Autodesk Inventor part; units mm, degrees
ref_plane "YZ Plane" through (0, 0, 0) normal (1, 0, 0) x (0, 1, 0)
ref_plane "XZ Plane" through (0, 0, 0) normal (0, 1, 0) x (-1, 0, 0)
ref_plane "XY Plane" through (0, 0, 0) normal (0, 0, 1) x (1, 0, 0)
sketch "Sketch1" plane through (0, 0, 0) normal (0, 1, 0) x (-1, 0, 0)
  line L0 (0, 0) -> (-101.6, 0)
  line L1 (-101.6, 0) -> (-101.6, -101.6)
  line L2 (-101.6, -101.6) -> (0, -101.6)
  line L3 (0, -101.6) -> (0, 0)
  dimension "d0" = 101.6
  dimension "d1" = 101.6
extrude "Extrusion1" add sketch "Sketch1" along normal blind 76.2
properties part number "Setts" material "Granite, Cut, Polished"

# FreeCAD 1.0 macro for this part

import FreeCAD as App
import Part
import Sketcher

V = App.Vector
Q = App.Units.Quantity

doc = App.newDocument("Part")
body = doc.addObject("PartDesign::Body", "Body")

sketch1 = doc.addObject("Sketcher::SketchObject", "Sketch")
body.addObject(sketch1)
sketch1.AttachmentSupport = (doc.XZ_Plane, [""])
sketch1.MapMode = "FlatFace"
sketch1.addGeometry([
    Part.LineSegment(V(0, -102, 0), V(0, 0, 0)),
    Part.LineSegment(V(0, 0, 0), V(102, 0, 0)),
    Part.LineSegment(V(102, 0, 0), V(102, -102, 0)),
    Part.LineSegment(V(102, -102, 0), V(0, -102, 0)),
], False)
sketch1.addConstraint([
    Sketcher.Constraint("Coincident", 0, 2, 1, 1),
    Sketcher.Constraint("Coincident", 1, 2, 2, 1),
    Sketcher.Constraint("Coincident", 2, 2, 3, 1),
    Sketcher.Constraint("Coincident", 3, 2, 0, 1),
    Sketcher.Constraint("Vertical", 0),
    Sketcher.Constraint("Horizontal", 1),
    Sketcher.Constraint("Vertical", 2),
    Sketcher.Constraint("Horizontal", 3),
    Sketcher.Constraint("Coincident", 0, 2, -1, 1),
    Sketcher.Constraint("Equal", 3, 0),
    Sketcher.Constraint("DistanceX", 1, 1, 1, 2, Q("4 in")),
])
pad1 = doc.addObject("PartDesign::Pad", "Pad")
body.addObject(pad1)
pad1.Profile = sketch1
pad1.Length = Q("3 in")
pad1.Reversed = True

doc.recompute()
